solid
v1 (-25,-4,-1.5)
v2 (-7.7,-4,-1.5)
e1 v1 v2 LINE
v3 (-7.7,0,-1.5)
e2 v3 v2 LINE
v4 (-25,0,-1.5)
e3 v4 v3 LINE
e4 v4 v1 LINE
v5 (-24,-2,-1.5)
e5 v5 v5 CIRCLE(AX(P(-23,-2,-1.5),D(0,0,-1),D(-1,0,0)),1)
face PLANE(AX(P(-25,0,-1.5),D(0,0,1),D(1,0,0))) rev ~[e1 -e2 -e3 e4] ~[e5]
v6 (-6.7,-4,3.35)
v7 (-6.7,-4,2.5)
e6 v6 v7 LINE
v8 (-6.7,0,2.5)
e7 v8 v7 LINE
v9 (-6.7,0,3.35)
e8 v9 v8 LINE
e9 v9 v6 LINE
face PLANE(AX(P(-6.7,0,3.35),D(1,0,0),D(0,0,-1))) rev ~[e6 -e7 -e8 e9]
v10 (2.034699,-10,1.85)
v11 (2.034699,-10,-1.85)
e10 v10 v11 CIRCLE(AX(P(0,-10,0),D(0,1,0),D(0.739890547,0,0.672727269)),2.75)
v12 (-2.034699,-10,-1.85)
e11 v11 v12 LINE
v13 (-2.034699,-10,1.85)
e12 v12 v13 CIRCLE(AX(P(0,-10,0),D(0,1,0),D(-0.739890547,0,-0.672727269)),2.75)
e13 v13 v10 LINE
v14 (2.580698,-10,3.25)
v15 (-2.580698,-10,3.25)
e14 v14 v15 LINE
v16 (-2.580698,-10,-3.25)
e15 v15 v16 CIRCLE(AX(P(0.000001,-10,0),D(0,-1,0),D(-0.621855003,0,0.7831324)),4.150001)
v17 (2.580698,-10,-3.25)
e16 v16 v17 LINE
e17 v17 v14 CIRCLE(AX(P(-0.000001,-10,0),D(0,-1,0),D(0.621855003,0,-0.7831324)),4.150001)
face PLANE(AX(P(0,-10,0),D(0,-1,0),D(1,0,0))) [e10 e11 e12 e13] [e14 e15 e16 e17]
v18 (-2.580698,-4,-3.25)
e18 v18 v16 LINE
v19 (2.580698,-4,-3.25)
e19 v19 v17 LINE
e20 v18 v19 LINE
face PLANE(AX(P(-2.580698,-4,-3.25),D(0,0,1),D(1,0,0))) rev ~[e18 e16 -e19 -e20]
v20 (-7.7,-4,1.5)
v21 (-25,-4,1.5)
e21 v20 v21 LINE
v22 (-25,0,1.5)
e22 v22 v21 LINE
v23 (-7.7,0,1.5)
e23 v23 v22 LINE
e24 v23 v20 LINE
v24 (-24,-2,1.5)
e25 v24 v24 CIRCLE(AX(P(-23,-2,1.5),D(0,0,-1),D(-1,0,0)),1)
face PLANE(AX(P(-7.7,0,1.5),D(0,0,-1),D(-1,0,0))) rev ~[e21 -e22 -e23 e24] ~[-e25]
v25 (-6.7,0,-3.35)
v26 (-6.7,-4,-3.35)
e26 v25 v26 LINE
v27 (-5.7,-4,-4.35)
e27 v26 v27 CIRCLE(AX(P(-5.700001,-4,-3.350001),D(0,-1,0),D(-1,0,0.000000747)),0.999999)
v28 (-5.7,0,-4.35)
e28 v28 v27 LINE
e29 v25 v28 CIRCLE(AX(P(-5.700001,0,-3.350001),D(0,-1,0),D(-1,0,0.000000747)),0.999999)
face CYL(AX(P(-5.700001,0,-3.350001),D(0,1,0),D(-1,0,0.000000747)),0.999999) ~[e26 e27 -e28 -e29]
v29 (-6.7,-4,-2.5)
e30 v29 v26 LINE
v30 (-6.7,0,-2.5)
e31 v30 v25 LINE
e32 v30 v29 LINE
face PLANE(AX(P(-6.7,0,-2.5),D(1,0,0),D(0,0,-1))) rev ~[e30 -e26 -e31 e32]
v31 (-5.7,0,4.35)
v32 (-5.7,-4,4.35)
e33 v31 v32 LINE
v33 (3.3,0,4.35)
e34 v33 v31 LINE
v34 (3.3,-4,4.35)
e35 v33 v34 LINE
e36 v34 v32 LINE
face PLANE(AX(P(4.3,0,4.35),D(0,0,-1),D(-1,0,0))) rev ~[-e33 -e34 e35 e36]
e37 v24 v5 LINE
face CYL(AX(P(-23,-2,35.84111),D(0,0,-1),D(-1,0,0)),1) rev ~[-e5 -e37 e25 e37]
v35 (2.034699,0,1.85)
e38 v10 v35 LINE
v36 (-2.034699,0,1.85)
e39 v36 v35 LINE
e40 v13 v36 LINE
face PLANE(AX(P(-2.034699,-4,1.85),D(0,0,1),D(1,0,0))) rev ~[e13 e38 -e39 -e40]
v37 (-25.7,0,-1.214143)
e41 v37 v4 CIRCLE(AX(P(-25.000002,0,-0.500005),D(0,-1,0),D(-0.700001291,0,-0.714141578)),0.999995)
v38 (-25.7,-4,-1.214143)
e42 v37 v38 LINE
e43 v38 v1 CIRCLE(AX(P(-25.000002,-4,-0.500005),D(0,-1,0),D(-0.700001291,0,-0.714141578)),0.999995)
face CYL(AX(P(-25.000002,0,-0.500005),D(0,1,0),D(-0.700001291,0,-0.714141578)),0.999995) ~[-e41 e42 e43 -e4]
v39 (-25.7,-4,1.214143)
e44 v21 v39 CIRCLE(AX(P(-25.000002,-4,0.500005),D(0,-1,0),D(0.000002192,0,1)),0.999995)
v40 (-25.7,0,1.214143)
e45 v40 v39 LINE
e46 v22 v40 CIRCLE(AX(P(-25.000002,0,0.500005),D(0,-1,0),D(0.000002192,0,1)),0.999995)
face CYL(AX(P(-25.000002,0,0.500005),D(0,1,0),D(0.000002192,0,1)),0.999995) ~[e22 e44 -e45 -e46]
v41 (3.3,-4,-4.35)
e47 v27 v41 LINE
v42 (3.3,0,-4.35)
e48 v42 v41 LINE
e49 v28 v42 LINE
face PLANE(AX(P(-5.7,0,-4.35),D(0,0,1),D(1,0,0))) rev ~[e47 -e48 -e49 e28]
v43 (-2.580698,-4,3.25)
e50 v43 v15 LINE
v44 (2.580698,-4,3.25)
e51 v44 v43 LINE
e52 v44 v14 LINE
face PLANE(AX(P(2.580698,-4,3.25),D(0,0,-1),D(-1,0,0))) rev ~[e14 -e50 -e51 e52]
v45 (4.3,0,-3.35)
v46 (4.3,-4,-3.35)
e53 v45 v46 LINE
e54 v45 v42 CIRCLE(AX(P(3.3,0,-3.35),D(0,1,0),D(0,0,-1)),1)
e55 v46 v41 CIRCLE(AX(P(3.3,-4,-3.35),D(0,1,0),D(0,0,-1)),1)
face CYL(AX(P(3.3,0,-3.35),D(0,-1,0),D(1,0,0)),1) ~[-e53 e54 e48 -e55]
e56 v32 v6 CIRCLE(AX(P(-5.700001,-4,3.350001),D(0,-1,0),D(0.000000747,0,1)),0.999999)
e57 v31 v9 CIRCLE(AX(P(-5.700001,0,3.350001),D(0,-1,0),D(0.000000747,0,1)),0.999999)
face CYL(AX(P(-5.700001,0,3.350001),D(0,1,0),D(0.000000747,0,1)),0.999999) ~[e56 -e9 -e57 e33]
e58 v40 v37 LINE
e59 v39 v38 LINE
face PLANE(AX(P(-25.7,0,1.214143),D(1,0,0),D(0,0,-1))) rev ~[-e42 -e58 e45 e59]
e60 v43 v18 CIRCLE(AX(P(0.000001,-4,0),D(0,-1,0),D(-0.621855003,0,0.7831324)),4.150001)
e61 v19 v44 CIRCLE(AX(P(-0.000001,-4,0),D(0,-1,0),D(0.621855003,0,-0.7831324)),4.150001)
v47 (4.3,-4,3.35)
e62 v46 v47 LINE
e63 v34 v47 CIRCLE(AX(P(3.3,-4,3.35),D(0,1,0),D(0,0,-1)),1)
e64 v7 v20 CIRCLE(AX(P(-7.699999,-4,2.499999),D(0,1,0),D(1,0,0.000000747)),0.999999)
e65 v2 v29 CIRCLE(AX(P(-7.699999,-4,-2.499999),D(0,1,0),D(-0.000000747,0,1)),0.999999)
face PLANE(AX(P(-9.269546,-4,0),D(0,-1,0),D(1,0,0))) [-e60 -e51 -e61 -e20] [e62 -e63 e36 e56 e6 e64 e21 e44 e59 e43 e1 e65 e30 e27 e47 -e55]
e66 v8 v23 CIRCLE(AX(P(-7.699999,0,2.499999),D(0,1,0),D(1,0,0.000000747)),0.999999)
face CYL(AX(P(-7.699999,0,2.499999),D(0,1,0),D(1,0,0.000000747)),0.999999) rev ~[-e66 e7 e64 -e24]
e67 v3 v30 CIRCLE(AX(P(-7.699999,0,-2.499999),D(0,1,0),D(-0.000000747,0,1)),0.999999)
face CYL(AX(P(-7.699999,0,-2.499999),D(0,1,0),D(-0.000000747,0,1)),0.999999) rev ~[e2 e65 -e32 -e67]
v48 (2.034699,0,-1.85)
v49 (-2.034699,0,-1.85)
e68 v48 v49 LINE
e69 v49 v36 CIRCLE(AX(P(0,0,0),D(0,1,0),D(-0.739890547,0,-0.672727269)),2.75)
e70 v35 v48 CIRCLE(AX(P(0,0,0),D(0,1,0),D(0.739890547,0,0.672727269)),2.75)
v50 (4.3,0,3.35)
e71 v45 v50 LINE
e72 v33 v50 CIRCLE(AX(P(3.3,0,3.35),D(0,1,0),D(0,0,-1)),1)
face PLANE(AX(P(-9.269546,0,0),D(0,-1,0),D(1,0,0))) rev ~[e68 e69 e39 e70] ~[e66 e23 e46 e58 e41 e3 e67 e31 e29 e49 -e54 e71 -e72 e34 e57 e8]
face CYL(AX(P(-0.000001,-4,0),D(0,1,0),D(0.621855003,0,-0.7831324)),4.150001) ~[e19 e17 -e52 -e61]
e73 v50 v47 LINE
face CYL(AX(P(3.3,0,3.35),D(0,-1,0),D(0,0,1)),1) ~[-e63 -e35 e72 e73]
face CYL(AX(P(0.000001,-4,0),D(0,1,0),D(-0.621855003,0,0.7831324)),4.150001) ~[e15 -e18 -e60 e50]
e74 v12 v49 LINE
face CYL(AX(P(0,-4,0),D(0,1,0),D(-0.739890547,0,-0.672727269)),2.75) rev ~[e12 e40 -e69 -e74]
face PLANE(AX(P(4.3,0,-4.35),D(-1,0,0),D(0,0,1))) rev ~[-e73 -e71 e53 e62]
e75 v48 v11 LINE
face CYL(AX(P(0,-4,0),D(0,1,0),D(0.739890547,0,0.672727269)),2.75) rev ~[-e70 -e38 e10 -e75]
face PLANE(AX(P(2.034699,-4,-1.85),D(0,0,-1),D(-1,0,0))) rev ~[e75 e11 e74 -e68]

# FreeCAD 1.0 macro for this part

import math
import FreeCAD as App
import Part
import Sketcher
Q = App.Units.Quantity


def edges_at(feature, points):
    """Names of the edges that pass closest to the given points."""
    edges = feature.Shape.Edges
    near = lambda p: min(range(len(edges)), key=lambda i: edges[i].distToShape(Part.Vertex(*p))[0])
    return sorted({f"Edge{near(p) + 1}" for p in points})

doc = App.newDocument("Part")
body = doc.addObject("PartDesign::Body", "Body")

sketch1 = doc.addObject("Sketcher::SketchObject", "Sketch")
body.addObject(sketch1)
sketch1.AttachmentSupport = (doc.XZ_Plane, [""])
sketch1.MapMode = "FlatFace"
sketch1.addGeometry([
    Part.LineSegment(App.Vector(4.3, 4.3, 0), App.Vector(-5.7, 4.3, 0)),
    Part.ArcOfCircle(Part.Circle(App.Vector(-5.7, 3.4, 0), App.Vector(0, 0, 1), 1), math.radians(90), math.radians(180)),
    Part.LineSegment(App.Vector(-6.7, 3.4, 0), App.Vector(-6.7, 2.5, 0)),
    Part.ArcOfCircle(Part.Circle(App.Vector(-7.7, 2.5, 0), App.Vector(0, 0, 1), 1), math.radians(-90), math.radians(0)),
    Part.LineSegment(App.Vector(-7.7, 1.5, 0), App.Vector(-25, 1.5, 0)),
    Part.ArcOfCircle(Part.Circle(App.Vector(-25, 0.5, 0), App.Vector(0, 0, 1), 1), math.radians(90), math.radians(134)),
    Part.LineSegment(App.Vector(-25.7, 1.2, 0), App.Vector(-25.7, -1.2, 0)),
    Part.ArcOfCircle(Part.Circle(App.Vector(-25, -0.5, 0), App.Vector(0, 0, 1), 1), math.radians(-134), math.radians(-90)),
    Part.LineSegment(App.Vector(-25, -1.5, 0), App.Vector(-7.7, -1.5, 0)),
    Part.ArcOfCircle(Part.Circle(App.Vector(-7.7, -2.5, 0), App.Vector(0, 0, 1), 1), math.radians(0), math.radians(90)),
    Part.LineSegment(App.Vector(-6.7, -2.5, 0), App.Vector(-6.7, -3.4, 0)),
    Part.ArcOfCircle(Part.Circle(App.Vector(-5.7, -3.4, 0), App.Vector(0, 0, 1), 1), math.radians(180), math.radians(270)),
    Part.LineSegment(App.Vector(-5.7, -4.3, 0), App.Vector(4.3, -4.3, 0)),
    Part.LineSegment(App.Vector(4.3, -4.3, 0), App.Vector(4.3, 4.3, 0)),
    Part.LineSegment(App.Vector(2, -1.9, 0), App.Vector(-2, -1.9, 0)),
    Part.ArcOfCircle(Part.Circle(App.Vector(0, 0, 0), App.Vector(0, 0, 1), 2.8), math.radians(138), math.radians(222)),
    Part.LineSegment(App.Vector(-2, 1.9, 0), App.Vector(2, 1.9, 0)),
    Part.ArcOfCircle(Part.Circle(App.Vector(0, 0, 0), App.Vector(0, 0, 1), 2.8), math.radians(-42), math.radians(42)),
], False)
sketch1.addConstraint([
    Sketcher.Constraint("Tangent", 0, 2, 1, 1),
    Sketcher.Constraint("Tangent", 1, 2, 2, 1),
    Sketcher.Constraint("Tangent", 2, 2, 3, 2),
    Sketcher.Constraint("Tangent", 3, 1, 4, 1),
    Sketcher.Constraint("Coincident", 4, 2, 5, 1),
    Sketcher.Constraint("Coincident", 5, 2, 6, 1),
    Sketcher.Constraint("Coincident", 6, 2, 7, 1),
    Sketcher.Constraint("Coincident", 7, 2, 8, 1),
    Sketcher.Constraint("Tangent", 8, 2, 9, 2),
    Sketcher.Constraint("Tangent", 9, 1, 10, 1),
    Sketcher.Constraint("Tangent", 10, 2, 11, 1),
    Sketcher.Constraint("Tangent", 11, 2, 12, 1),
    Sketcher.Constraint("Coincident", 12, 2, 13, 1),
    Sketcher.Constraint("Coincident", 13, 2, 0, 1),
    Sketcher.Constraint("Coincident", 14, 2, 15, 2),
    Sketcher.Constraint("Coincident", 15, 1, 16, 1),
    Sketcher.Constraint("Coincident", 16, 2, 17, 2),
    Sketcher.Constraint("Coincident", 17, 1, 14, 1),
    Sketcher.Constraint("Horizontal", 0),
    Sketcher.Constraint("Vertical", 2),
    Sketcher.Constraint("Horizontal", 4),
    Sketcher.Constraint("Vertical", 6),
    Sketcher.Constraint("Horizontal", 8),
    Sketcher.Constraint("Vertical", 10),
    Sketcher.Constraint("Horizontal", 12),
    Sketcher.Constraint("Vertical", 13),
    Sketcher.Constraint("Horizontal", 14),
    Sketcher.Constraint("Horizontal", 16),
    Sketcher.Constraint("Coincident", 15, 3, -1, 1),
    Sketcher.Constraint("Coincident", 17, 3, -1, 1),
    Sketcher.Constraint("Equal", 1, 3),
    Sketcher.Constraint("Equal", 5, 7),
    Sketcher.Constraint("Equal", 3, 9),
    Sketcher.Constraint("Equal", 9, 11),
    Sketcher.Constraint("Equal", 15, 17),
    Sketcher.Constraint("Symmetric", 5, 3, 7, 3, -1),
    Sketcher.Constraint("Symmetric", 1, 3, 11, 3, -1),
    Sketcher.Constraint("Vertical", 4, 2, 7, 2),
    Sketcher.Constraint("Vertical", 14, 2, 15, 1),
    Sketcher.Constraint("Radius", 1, Q("0.999999 mm")),
    Sketcher.Constraint("DistanceX", 0, 2, 0, 1, Q("10 mm")),
    Sketcher.Constraint("Radius", 15, Q("2.75 mm")),
    Sketcher.Constraint("DistanceX", 4, 2, 4, 1, Q("17.3 mm")),
    Sketcher.Constraint("DistanceY", 13, 1, 13, 2, Q("8.7 mm")),
    Sketcher.Constraint("DistanceX", 4, 2, -1, 1, Q("25 mm")),
    Sketcher.Constraint("DistanceY", 9, 3, 3, 3, Q("4.999999 mm")),
    Sketcher.Constraint("DistanceX", 5, 2, 3, 1, Q("18 mm")),
    Sketcher.Constraint("DistanceX", 5, 3, 1, 3, Q("19.300001 mm")),
    Sketcher.Constraint("DistanceY", 11, 3, 14, 2, Q("1.500001 mm")),
    Sketcher.Constraint("Radius", 5, Q("0.999995 mm")),
])
pad1 = doc.addObject("PartDesign::Pad", "Pad")
body.addObject(pad1)
pad1.Profile = sketch1
pad1.Length = 4

sketch2 = doc.addObject("Sketcher::SketchObject", "Sketch001")
body.addObject(sketch2)
sketch2.AttachmentSupport = (doc.XY_Plane, [""])
sketch2.MapMode = "FlatFace"
sketch2.AttachmentOffset = App.Placement(App.Vector(0, 0, 4.35), App.Rotation())
sketch2.addGeometry(Part.Circle(App.Vector(-23, -2, 0), App.Vector(0, 0, 1), 1), False)
sketch2.addConstraint([
    Sketcher.Constraint("Diameter", 0, Q("2 mm")),
    Sketcher.Constraint("DistanceX", 0, 3, -1, 1, Q("23 mm")),
    Sketcher.Constraint("DistanceY", 0, 3, -1, 1, Q("2 mm")),
])
doc.recompute()
hole = doc.addObject("PartDesign::Hole", "Hole")
body.addObject(hole)
hole.Profile = sketch2
hole.ThreadType = "None"
hole.Diameter = 2
hole.DepthType = "ThroughAll"
doc.recompute()

fillet = doc.addObject("PartDesign::Fillet", "Fillet")
body.addObject(fillet)
fillet.Base = (hole, edges_at(hole, [(4.3, -2, 4.35)]))
fillet.Radius = 1
doc.recompute()

fillet2 = doc.addObject("PartDesign::Fillet", "Fillet001")
body.addObject(fillet2)
fillet2.Base = (fillet, edges_at(fillet, [(4.3, -2, -4.35)]))
fillet2.Radius = 1

sketch3 = doc.addObject("Sketcher::SketchObject", "Sketch002")
body.addObject(sketch3)
sketch3.AttachmentSupport = (doc.XZ_Plane, [""])
sketch3.MapMode = "FlatFace"
sketch3.AttachmentOffset = App.Placement(App.Vector(0, 0, 4), App.Rotation())
sketch3.addGeometry([
    Part.ArcOfCircle(Part.Circle(App.Vector(0, 0, 0), App.Vector(0, 0, 1), 4.2), math.radians(128), math.radians(232)),
    Part.LineSegment(App.Vector(-2.6, -3.2, 0), App.Vector(2.6, -3.2, 0)),
    Part.ArcOfCircle(Part.Circle(App.Vector(0, 0, 0), App.Vector(0, 0, 1), 4.2), math.radians(-52), math.radians(52)),
    Part.LineSegment(App.Vector(2.6, 3.2, 0), App.Vector(-2.6, 3.2, 0)),
    Part.ArcOfCircle(Part.Circle(App.Vector(0, 0, 0), App.Vector(0, 0, 1), 2.8), math.radians(-42), math.radians(42)),
    Part.LineSegment(App.Vector(2, -1.9, 0), App.Vector(-2, -1.9, 0)),
    Part.ArcOfCircle(Part.Circle(App.Vector(0, 0, 0), App.Vector(0, 0, 1), 2.8), math.radians(138), math.radians(222)),
    Part.LineSegment(App.Vector(-2, 1.9, 0), App.Vector(2, 1.9, 0)),
], False)
sketch3.addConstraint([
    Sketcher.Constraint("Coincident", 0, 2, 1, 1),
    Sketcher.Constraint("Coincident", 1, 2, 2, 1),
    Sketcher.Constraint("Coincident", 2, 2, 3, 1),
    Sketcher.Constraint("Coincident", 3, 2, 0, 1),
    Sketcher.Constraint("Coincident", 4, 1, 5, 1),
    Sketcher.Constraint("Coincident", 5, 2, 6, 2),
    Sketcher.Constraint("Coincident", 6, 1, 7, 1),
    Sketcher.Constraint("Coincident", 7, 2, 4, 2),
    Sketcher.Constraint("Horizontal", 1),
    Sketcher.Constraint("Horizontal", 3),
    Sketcher.Constraint("Horizontal", 5),
    Sketcher.Constraint("Horizontal", 7),
    Sketcher.Constraint("Coincident", 0, 3, -1, 1),
    Sketcher.Constraint("Coincident", 2, 3, -1, 1),
    Sketcher.Constraint("Coincident", 4, 3, -1, 1),
    Sketcher.Constraint("Coincident", 6, 3, -1, 1),
    Sketcher.Constraint("Equal", 0, 2),
    Sketcher.Constraint("Equal", 4, 6),
    Sketcher.Constraint("Vertical", 1, 2, 2, 2),
    Sketcher.Constraint("Vertical", 5, 2, 6, 1),
    Sketcher.Constraint("Radius", 0, Q("4.150001 mm")),
    Sketcher.Constraint("Radius", 4, Q("2.75 mm")),
    Sketcher.Constraint("DistanceY", 1, 2, 2, 2, Q("6.5 mm")),
    Sketcher.Constraint("DistanceY", 1, 2, 4, 1, Q("1.4 mm")),
])
pad2 = doc.addObject("PartDesign::Pad", "Pad001")
body.addObject(pad2)
pad2.Profile = sketch3
pad2.Length = 6

doc.recompute()
